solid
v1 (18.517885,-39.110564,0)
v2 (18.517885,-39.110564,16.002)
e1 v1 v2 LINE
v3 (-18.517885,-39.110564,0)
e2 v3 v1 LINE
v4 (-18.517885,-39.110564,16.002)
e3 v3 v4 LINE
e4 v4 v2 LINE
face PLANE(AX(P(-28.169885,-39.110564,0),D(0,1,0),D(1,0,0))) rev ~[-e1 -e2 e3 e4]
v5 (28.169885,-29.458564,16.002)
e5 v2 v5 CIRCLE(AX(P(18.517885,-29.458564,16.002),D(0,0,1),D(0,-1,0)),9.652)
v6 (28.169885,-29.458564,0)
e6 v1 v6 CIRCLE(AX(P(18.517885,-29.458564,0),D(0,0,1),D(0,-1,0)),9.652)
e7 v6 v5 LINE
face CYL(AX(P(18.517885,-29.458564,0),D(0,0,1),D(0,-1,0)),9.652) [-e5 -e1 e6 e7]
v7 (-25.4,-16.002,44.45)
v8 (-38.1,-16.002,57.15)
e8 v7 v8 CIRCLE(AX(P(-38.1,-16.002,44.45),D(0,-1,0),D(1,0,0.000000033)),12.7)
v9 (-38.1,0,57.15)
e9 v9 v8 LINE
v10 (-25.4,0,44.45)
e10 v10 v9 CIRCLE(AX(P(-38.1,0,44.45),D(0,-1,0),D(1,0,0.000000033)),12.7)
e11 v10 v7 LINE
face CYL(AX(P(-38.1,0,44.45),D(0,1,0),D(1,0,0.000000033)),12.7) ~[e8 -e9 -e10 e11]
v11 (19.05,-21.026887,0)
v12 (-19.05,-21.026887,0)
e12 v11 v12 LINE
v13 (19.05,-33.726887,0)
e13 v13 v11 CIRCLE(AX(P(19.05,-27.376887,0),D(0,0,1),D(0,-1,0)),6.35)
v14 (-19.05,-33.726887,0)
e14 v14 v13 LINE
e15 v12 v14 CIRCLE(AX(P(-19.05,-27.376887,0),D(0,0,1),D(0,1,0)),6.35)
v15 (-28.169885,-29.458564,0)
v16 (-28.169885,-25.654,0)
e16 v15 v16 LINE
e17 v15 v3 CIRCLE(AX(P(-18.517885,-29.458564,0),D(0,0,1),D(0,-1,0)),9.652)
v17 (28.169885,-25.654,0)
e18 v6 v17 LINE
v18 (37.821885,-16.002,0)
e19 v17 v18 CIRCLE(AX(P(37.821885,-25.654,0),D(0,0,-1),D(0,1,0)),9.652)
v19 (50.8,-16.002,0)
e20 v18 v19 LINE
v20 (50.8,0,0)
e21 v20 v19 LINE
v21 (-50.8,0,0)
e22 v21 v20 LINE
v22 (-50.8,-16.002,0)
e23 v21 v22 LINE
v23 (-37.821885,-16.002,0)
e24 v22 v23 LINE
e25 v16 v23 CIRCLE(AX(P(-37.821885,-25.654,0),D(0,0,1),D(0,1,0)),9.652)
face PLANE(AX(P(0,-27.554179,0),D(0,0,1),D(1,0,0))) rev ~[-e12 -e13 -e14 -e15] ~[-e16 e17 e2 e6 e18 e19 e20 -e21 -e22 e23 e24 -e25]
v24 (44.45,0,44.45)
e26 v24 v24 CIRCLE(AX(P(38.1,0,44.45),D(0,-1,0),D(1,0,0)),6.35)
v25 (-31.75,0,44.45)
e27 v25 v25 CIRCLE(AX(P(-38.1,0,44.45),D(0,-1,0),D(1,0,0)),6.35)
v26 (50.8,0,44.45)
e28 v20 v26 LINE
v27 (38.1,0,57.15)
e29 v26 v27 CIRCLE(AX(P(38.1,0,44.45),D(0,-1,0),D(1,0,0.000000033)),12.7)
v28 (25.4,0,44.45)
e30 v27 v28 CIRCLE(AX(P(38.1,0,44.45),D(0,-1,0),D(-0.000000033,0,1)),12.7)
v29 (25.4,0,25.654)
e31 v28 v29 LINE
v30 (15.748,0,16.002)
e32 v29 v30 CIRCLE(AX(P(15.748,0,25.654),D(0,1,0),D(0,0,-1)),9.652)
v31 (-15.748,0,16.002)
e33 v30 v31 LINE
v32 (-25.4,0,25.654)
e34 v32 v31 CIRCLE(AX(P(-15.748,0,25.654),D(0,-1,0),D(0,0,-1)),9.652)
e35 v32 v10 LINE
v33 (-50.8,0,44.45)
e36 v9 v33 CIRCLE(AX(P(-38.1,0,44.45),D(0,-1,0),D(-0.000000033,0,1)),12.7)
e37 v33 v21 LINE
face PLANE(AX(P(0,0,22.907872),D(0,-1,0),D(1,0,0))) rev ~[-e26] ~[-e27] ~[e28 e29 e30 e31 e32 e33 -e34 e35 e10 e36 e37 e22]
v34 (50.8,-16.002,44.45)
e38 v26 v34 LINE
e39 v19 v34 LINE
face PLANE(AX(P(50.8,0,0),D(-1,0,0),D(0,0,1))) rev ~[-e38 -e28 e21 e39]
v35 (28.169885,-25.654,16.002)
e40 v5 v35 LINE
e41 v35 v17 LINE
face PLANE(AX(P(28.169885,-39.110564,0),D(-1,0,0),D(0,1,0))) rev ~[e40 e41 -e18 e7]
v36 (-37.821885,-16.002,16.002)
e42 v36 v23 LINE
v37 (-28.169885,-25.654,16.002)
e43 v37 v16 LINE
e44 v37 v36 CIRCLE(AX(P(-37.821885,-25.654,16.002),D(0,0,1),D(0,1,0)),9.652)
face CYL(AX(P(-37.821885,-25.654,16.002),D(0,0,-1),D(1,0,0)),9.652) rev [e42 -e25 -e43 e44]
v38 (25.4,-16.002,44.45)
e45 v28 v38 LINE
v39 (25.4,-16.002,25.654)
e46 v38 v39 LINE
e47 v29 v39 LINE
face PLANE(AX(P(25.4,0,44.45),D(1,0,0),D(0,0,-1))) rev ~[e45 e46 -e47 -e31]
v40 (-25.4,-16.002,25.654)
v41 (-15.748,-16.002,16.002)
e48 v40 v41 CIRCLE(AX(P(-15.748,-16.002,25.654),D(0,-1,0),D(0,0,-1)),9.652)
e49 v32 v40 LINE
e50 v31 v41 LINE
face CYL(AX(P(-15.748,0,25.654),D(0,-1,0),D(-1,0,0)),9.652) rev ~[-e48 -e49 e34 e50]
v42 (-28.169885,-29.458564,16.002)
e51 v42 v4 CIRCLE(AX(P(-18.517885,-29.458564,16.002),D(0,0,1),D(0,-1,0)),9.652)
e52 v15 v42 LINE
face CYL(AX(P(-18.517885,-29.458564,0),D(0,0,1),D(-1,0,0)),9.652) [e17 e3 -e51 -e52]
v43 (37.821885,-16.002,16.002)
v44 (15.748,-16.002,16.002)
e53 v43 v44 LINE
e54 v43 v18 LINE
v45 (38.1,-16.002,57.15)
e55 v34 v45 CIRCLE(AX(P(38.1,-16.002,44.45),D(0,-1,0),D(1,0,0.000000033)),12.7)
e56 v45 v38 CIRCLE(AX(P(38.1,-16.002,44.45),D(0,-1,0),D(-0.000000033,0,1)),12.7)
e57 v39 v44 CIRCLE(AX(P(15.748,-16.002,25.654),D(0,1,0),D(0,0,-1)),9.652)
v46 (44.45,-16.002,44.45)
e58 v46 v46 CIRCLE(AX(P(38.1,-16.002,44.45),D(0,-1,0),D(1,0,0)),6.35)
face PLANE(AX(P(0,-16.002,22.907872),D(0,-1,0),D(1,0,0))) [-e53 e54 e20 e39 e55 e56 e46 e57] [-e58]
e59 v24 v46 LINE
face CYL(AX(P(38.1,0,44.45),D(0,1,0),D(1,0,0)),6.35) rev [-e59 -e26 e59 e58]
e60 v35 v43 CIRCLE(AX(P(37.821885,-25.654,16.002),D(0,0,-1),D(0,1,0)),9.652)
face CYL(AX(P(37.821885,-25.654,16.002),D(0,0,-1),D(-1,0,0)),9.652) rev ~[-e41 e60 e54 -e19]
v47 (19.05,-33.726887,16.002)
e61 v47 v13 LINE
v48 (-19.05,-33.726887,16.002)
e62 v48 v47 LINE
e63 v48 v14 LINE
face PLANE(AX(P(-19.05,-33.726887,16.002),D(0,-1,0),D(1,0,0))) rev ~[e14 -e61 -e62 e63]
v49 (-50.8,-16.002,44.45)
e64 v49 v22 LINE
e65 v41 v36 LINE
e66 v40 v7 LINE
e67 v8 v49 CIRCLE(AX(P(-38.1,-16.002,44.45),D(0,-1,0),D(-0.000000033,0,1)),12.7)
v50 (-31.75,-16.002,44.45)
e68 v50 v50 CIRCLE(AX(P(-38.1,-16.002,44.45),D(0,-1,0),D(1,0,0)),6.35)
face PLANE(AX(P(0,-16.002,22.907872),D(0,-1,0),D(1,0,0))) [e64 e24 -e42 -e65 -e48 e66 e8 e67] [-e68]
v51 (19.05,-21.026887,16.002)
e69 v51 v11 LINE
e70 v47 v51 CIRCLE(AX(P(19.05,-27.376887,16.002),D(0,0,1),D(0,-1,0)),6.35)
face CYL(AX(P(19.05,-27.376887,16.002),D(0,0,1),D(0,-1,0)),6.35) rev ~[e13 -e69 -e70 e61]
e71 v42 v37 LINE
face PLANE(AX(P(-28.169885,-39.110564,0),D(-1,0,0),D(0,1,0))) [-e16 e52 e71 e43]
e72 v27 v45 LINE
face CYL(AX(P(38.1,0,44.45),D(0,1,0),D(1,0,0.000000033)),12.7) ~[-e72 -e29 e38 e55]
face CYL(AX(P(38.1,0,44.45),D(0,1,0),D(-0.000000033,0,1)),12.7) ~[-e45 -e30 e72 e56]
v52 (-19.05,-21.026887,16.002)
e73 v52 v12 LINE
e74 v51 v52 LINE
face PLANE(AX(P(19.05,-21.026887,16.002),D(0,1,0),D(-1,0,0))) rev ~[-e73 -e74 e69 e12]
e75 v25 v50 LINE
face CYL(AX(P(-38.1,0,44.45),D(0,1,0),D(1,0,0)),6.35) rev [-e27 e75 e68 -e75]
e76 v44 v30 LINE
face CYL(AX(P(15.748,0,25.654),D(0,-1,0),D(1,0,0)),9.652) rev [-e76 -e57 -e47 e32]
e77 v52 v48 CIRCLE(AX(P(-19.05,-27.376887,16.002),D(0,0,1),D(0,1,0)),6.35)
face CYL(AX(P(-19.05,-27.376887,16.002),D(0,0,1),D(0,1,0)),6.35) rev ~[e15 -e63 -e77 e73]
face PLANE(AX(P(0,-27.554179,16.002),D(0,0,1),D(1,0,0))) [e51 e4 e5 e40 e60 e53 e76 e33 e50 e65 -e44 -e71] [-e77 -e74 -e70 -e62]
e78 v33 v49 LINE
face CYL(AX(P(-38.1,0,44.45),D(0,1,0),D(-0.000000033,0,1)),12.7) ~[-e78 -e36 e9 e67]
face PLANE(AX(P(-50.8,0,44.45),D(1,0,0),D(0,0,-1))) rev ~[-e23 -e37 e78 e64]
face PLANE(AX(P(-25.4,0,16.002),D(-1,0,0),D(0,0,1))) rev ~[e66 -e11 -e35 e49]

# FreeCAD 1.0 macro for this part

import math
import FreeCAD as App
import Part
import Sketcher

V = App.Vector
Q = App.Units.Quantity


def edges_at(feature, points):
    """Names of the edges that pass closest to the given points."""
    edges = feature.Shape.Edges
    near = lambda p: min(range(len(edges)), key=lambda i: edges[i].distToShape(Part.Vertex(*p))[0])
    return sorted({f"Edge{near(p) + 1}" for p in points})


def add_polygon(sketch, points):
    """Adds a closed chain of lines whose ends are joined by coincident constraints."""
    first, n = sketch.GeometryCount, len(points)
    for a, b in zip(points, points[1:] + points[:1]):
        sketch.addGeometry(Part.LineSegment(App.Vector(*a, 0), App.Vector(*b, 0)), False)
    for i in range(n):
        sketch.addConstraint(Sketcher.Constraint("Coincident", first + i, 2, first + (i + 1) % n, 1))

doc = App.newDocument("Part")
params = doc.addObject("Spreadsheet::Sheet", "Params")
for row, (alias, value) in enumerate([
    ("sketch1_diameter", "0.5 in"),
    ("sketch1_radius", "0.5 in"),
    ("sketch1_width", "4 in"),
    ("sketch1_height", "1.75 in"),
    ("sketch1_height2", "1.12 in"),
    ("pad1_length", "0.63 in"),
    ("sketch2_diameter", "0.5 in"),
    ("sketch2_radius", "0.5 in"),
    ("sketch2_width", "4 in"),
    ("sketch2_height", "1.75 in"),
    ("sketch2_height2", "1.12 in"),
    ("pad2_length", "0.63 in"),
    ("fillet_radius", "0.38 in"),
    ("pad3_length", "0.63 in"),
    ("fillet2_radius", "0.38 in"),
    ("sketch4_radius", "0.25 in"),
    ("sketch4_width", "1.5 in"),
], start=1):
    params.set(f"A{row}", alias)
    params.set(f"B{row}", "=" + value)
    params.setAlias(f"B{row}", alias)

body = doc.addObject("PartDesign::Body", "Body")

# Sketch on XZ plane
sketch1 = body.newObject("Sketcher::SketchObject", "Sketch")
sketch1.AttachmentSupport = (doc.getObject("XZ_Plane"), [""])
sketch1.MapMode = "FlatFace"
sketch1.addGeometry([
    Part.LineSegment(V(-51, 0, 0), V(51, 0, 0)),  # 0
    Part.LineSegment(V(51, 0, 0), V(51, 44, 0)),  # 1
    Part.ArcOfCircle(Part.Circle(V(38, 44, 0), V(0, 0, 1), 13), math.radians(0), math.radians(90)),  # 2
    Part.ArcOfCircle(Part.Circle(V(38, 44, 0), V(0, 0, 1), 13), math.radians(90), math.radians(180)),  # 3
    Part.LineSegment(V(25, 44, 0), V(25, 16, 0)),  # 4
    Part.LineSegment(V(25, 16, 0), V(-25, 16, 0)),  # 5
    Part.LineSegment(V(-25, 16, 0), V(-25, 44, 0)),  # 6
    Part.ArcOfCircle(Part.Circle(V(-38, 44, 0), V(0, 0, 1), 13), math.radians(0), math.radians(90)),  # 7
    Part.ArcOfCircle(Part.Circle(V(-38, 44, 0), V(0, 0, 1), 13), math.radians(90), math.radians(180)),  # 8
    Part.LineSegment(V(-51, 44, 0), V(-51, 0, 0)),  # 9
    Part.Circle(V(-38, 44, 0), V(0, 0, 1), 6),  # 10
    Part.Circle(V(38, 44, 0), V(0, 0, 1), 6),  # 11
], False)
sketch1.addConstraint([
    Sketcher.Constraint("Coincident", 0, 2, 1, 1),
    Sketcher.Constraint("Tangent", 1, 2, 2, 1),
    Sketcher.Constraint("Tangent", 2, 2, 3, 1),
    Sketcher.Constraint("Tangent", 3, 2, 4, 1),
    Sketcher.Constraint("Coincident", 4, 2, 5, 1),
    Sketcher.Constraint("Coincident", 5, 2, 6, 1),
    Sketcher.Constraint("Tangent", 6, 2, 7, 1),
    Sketcher.Constraint("Tangent", 7, 2, 8, 1),
    Sketcher.Constraint("Tangent", 8, 2, 9, 1),
    Sketcher.Constraint("Coincident", 9, 2, 0, 1),
    Sketcher.Constraint("Horizontal", 0),
    Sketcher.Constraint("Vertical", 1),
    Sketcher.Constraint("Vertical", 4),
    Sketcher.Constraint("Horizontal", 5),
    Sketcher.Constraint("Vertical", 6),
    Sketcher.Constraint("Vertical", 9),
    Sketcher.Constraint("Coincident", 10, 3, 7, 3),
    Sketcher.Constraint("Coincident", 11, 3, 2, 3),
    Sketcher.Constraint("Equal", 2, 3),
    Sketcher.Constraint("Equal", 3, 7),
    Sketcher.Constraint("Equal", 7, 8),
    Sketcher.Constraint("Equal", 10, 11),
    Sketcher.Constraint("Symmetric", 0, 2, 9, 2, -1, 1),
    Sketcher.Constraint("Symmetric", 2, 2, 7, 2, -2),
    Sketcher.Constraint("Vertical", 11, 3, 2, 2),
    Sketcher.Constraint("Diameter", 10, Q("0.5 in")),
    Sketcher.Constraint("Radius", 2, Q("0.5 in")),
    Sketcher.Constraint("DistanceX", 0, 1, 0, 2, Q("4 in")),
    Sketcher.Constraint("DistanceY", 1, 1, 1, 2, Q("1.75 in")),
    Sketcher.Constraint("DistanceY", 4, 2, 4, 1, Q("1.12 in")),
])
sketch1.setExpression("Constraints[25]", "Params.sketch1_diameter")
sketch1.setExpression("Constraints[26]", "Params.sketch1_radius")
sketch1.setExpression("Constraints[27]", "Params.sketch1_width")
sketch1.setExpression("Constraints[28]", "Params.sketch1_height")
sketch1.setExpression("Constraints[29]", "Params.sketch1_height2")
pad1 = body.newObject("PartDesign::Pad", "Pad")
pad1.Profile = sketch1
pad1.setExpression("Length", "Params.pad1_length")

# Sketch on XZ plane
sketch2 = body.newObject("Sketcher::SketchObject", "Sketch001")
sketch2.AttachmentSupport = (doc.getObject("XZ_Plane"), [""])
sketch2.MapMode = "FlatFace"
sketch2.addGeometry([
    Part.LineSegment(V(-51, 0, 0), V(51, 0, 0)),  # 0
    Part.LineSegment(V(51, 0, 0), V(51, 44, 0)),  # 1
    Part.ArcOfCircle(Part.Circle(V(38, 44, 0), V(0, 0, 1), 13), math.radians(0), math.radians(90)),  # 2
    Part.ArcOfCircle(Part.Circle(V(38, 44, 0), V(0, 0, 1), 13), math.radians(90), math.radians(180)),  # 3
    Part.LineSegment(V(25, 44, 0), V(25, 16, 0)),  # 4
    Part.LineSegment(V(25, 16, 0), V(-25, 16, 0)),  # 5
    Part.LineSegment(V(-25, 16, 0), V(-25, 44, 0)),  # 6
    Part.ArcOfCircle(Part.Circle(V(-38, 44, 0), V(0, 0, 1), 13), math.radians(0), math.radians(90)),  # 7
    Part.ArcOfCircle(Part.Circle(V(-38, 44, 0), V(0, 0, 1), 13), math.radians(90), math.radians(180)),  # 8
    Part.LineSegment(V(-51, 44, 0), V(-51, 0, 0)),  # 9
    Part.Circle(V(-38, 44, 0), V(0, 0, 1), 6),  # 10
    Part.Circle(V(38, 44, 0), V(0, 0, 1), 6),  # 11
], False)
sketch2.addConstraint([
    Sketcher.Constraint("Coincident", 0, 2, 1, 1),
    Sketcher.Constraint("Tangent", 1, 2, 2, 1),
    Sketcher.Constraint("Tangent", 2, 2, 3, 1),
    Sketcher.Constraint("Tangent", 3, 2, 4, 1),
    Sketcher.Constraint("Coincident", 4, 2, 5, 1),
    Sketcher.Constraint("Coincident", 5, 2, 6, 1),
    Sketcher.Constraint("Tangent", 6, 2, 7, 1),
    Sketcher.Constraint("Tangent", 7, 2, 8, 1),
    Sketcher.Constraint("Tangent", 8, 2, 9, 1),
    Sketcher.Constraint("Coincident", 9, 2, 0, 1),
    Sketcher.Constraint("Horizontal", 0),
    Sketcher.Constraint("Vertical", 1),
    Sketcher.Constraint("Vertical", 4),
    Sketcher.Constraint("Horizontal", 5),
    Sketcher.Constraint("Vertical", 6),
    Sketcher.Constraint("Vertical", 9),
    Sketcher.Constraint("Coincident", 10, 3, 7, 3),
    Sketcher.Constraint("Coincident", 11, 3, 2, 3),
    Sketcher.Constraint("Equal", 2, 3),
    Sketcher.Constraint("Equal", 3, 7),
    Sketcher.Constraint("Equal", 7, 8),
    Sketcher.Constraint("Equal", 10, 11),
    Sketcher.Constraint("Symmetric", 0, 2, 9, 2, -1, 1),
    Sketcher.Constraint("Symmetric", 2, 2, 7, 2, -2),
    Sketcher.Constraint("Vertical", 11, 3, 2, 2),
    Sketcher.Constraint("Diameter", 10, Q("0.5 in")),
    Sketcher.Constraint("Radius", 2, Q("0.5 in")),
    Sketcher.Constraint("DistanceX", 0, 1, 0, 2, Q("4 in")),
    Sketcher.Constraint("DistanceY", 1, 1, 1, 2, Q("1.75 in")),
    Sketcher.Constraint("DistanceY", 4, 2, 4, 1, Q("1.12 in")),
])
sketch2.setExpression("Constraints[25]", "Params.sketch2_diameter")
sketch2.setExpression("Constraints[26]", "Params.sketch2_radius")
sketch2.setExpression("Constraints[27]", "Params.sketch2_width")
sketch2.setExpression("Constraints[28]", "Params.sketch2_height")
sketch2.setExpression("Constraints[29]", "Params.sketch2_height2")
pad2 = body.newObject("PartDesign::Pad", "Pad001")
pad2.Profile = sketch2
pad2.setExpression("Length", "Params.pad2_length")
doc.recompute()

fillet = body.newObject("PartDesign::Fillet", "Fillet")
fillet.Base = (pad2, edges_at(pad2, [(-25.4, -8.001, 16.002), (25.4, -8.001, 16.002)]))
fillet.setExpression("Radius", "Params.fillet_radius")

# Sketch on XY plane
sketch3 = body.newObject("Sketcher::SketchObject", "Sketch002")
sketch3.AttachmentSupport = (doc.getObject("XY_Plane"), [""])
sketch3.MapMode = "FlatFace"
add_polygon(sketch3, [(-28, -16), (-28, -39), (28, -39), (28, -16)])  # lines 0-3
sketch3.addConstraint([
    Sketcher.Constraint("Vertical", 0),
    Sketcher.Constraint("Horizontal", 1),
    Sketcher.Constraint("Vertical", 2),
    Sketcher.Constraint("Horizontal", 3),
    Sketcher.Constraint("DistanceX", 1, 1, 1, 2, 56.33977),
    Sketcher.Constraint("DistanceY", 0, 2, 0, 1, 23.11277),
    Sketcher.Constraint("DistanceX", 0, 2, -1, 1, 28.169885),
    Sketcher.Constraint("DistanceY", 0, 2, -1, 1, 39.110564),
])
pad3 = body.newObject("PartDesign::Pad", "Pad002")
pad3.Profile = sketch3
pad3.setExpression("Length", "Params.pad3_length")
doc.recompute()

fillet2 = body.newObject("PartDesign::Fillet", "Fillet001")
fillet2.Base = (pad3, edges_at(pad3, [
    (28.17, -39.111, 8.001),
    (-28.17, -39.111, 8.001),
    (28.17, -16.002, 8.001),
    (-28.17, -16.002, 8.001),
]))
fillet2.setExpression("Radius", "Params.fillet2_radius")

# Sketch on XY plane
sketch4 = body.newObject("Sketcher::SketchObject", "Sketch003")
sketch4.AttachmentSupport = (doc.getObject("XY_Plane"), [""])
sketch4.MapMode = "FlatFace"
sketch4.AttachmentOffset = App.Placement(V(0, 0, 0.63 * 25.4), App.Rotation())
sketch4.addGeometry([
    Part.LineSegment(V(19, -21, 0), V(-19, -21, 0)),
    Part.ArcOfCircle(Part.Circle(V(-19, -27, 0), V(0, 0, 1), 6), math.radians(90), math.radians(270)),
    Part.LineSegment(V(-19, -34, 0), V(19, -34, 0)),
    Part.ArcOfCircle(Part.Circle(V(19, -27, 0), V(0, 0, 1), 6), math.radians(-90), math.radians(90)),
], False)
sketch4.addConstraint([
    Sketcher.Constraint("Tangent", 0, 2, 1, 1),
    Sketcher.Constraint("Tangent", 1, 2, 2, 1),
    Sketcher.Constraint("Tangent", 2, 2, 3, 1),
    Sketcher.Constraint("Tangent", 3, 2, 0, 1),
    Sketcher.Constraint("Horizontal", 0),
    Sketcher.Constraint("Horizontal", 2),
    Sketcher.Constraint("Radius", 1, Q("0.25 in")),
    Sketcher.Constraint("DistanceX", 0, 2, 0, 1, Q("1.5 in")),
    Sketcher.Constraint("DistanceX", 1, 3, -1, 1, Q("0.75 in")),
    Sketcher.Constraint("DistanceY", 1, 3, -1, 1, 27.376887),
])
sketch4.setExpression("Constraints[6]", "Params.sketch4_radius")
sketch4.setExpression("Constraints[7]", "Params.sketch4_width")
pocket1 = body.newObject("PartDesign::Pocket", "Pocket")
pocket1.Profile = sketch4
pocket1.Type = "ThroughAll"

doc.recompute()
